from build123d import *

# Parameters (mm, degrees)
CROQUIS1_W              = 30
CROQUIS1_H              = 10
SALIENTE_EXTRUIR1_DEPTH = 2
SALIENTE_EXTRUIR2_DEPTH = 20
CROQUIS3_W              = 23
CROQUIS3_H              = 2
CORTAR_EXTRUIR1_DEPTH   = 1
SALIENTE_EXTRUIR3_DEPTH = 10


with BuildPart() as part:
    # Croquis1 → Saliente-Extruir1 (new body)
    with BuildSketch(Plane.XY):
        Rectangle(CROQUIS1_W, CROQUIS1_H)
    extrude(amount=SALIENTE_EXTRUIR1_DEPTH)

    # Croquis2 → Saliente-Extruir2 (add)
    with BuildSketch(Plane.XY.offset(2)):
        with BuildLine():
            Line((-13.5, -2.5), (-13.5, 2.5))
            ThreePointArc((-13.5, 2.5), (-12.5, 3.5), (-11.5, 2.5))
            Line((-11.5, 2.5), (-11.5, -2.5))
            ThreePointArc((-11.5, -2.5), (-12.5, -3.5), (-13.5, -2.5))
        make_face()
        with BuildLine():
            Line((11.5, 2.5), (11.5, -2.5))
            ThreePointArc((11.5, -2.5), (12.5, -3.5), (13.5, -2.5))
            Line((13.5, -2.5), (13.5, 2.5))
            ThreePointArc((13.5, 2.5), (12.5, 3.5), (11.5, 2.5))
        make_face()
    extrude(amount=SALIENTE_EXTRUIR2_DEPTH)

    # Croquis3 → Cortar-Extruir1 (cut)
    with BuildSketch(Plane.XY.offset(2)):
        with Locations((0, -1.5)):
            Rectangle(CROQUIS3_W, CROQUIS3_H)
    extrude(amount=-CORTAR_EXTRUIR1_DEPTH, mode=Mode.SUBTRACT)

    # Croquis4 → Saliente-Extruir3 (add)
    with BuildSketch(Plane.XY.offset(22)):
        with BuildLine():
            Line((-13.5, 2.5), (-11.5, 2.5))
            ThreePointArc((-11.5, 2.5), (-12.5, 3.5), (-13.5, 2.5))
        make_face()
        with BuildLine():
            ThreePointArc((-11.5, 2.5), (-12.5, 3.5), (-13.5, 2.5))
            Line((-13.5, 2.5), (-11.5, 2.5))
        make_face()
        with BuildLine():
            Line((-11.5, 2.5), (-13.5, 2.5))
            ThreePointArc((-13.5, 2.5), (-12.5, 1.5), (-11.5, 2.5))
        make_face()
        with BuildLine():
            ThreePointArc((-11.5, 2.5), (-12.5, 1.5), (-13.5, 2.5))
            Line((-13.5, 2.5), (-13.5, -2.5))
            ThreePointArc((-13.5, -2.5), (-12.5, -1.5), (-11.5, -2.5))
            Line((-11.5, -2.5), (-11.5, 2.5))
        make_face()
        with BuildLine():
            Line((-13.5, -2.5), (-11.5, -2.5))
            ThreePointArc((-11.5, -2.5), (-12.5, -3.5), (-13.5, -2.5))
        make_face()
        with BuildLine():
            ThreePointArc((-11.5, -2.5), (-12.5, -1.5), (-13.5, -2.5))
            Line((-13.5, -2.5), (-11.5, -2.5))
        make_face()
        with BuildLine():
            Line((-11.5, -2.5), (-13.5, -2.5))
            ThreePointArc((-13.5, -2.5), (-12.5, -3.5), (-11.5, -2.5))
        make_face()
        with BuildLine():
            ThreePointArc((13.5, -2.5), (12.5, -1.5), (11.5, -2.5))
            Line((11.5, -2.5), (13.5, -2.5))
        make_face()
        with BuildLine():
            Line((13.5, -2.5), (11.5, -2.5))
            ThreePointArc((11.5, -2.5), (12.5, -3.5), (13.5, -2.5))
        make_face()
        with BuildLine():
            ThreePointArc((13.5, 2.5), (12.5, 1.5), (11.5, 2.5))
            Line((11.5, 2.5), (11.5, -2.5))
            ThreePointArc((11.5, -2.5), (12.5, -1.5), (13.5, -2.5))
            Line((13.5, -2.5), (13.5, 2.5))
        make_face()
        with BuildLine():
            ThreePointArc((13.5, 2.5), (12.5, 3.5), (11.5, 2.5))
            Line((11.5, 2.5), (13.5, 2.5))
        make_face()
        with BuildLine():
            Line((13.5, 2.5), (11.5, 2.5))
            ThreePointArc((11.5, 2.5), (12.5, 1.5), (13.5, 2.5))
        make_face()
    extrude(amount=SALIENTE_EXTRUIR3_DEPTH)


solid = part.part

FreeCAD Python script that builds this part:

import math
import FreeCAD as App
import Part
import Sketcher
from FreeCAD import Vector

doc = App.newDocument("Part")
body = doc.addObject("PartDesign::Body", "Body")

sketch1 = body.newObject("Sketcher::SketchObject", "Sketch")
sketch1.AttachmentSupport = (doc.getObject("XY_Plane"), [""])
sketch1.MapMode = "FlatFace"
sketch1.addGeometry([
    Part.LineSegment(Vector(-15, 5, 0), Vector(-15, -5, 0)),
    Part.LineSegment(Vector(-15, -5, 0), Vector(15, -5, 0)),
    Part.LineSegment(Vector(15, -5, 0), Vector(15, 5, 0)),
    Part.LineSegment(Vector(15, 5, 0), Vector(-15, 5, 0)),
], False)
sketch1.addConstraint([
    Sketcher.Constraint("Coincident", 0, 2, 1, 1),
    Sketcher.Constraint("Coincident", 1, 2, 2, 1),
    Sketcher.Constraint("Coincident", 2, 2, 3, 1),
    Sketcher.Constraint("Coincident", 3, 2, 0, 1),
    Sketcher.Constraint("Vertical", 0),
    Sketcher.Constraint("Horizontal", 1),
    Sketcher.Constraint("Vertical", 2),
    Sketcher.Constraint("Horizontal", 3),
    Sketcher.Constraint("Symmetric", 0, 2, 2, 2, -1, 1),
    Sketcher.Constraint("DistanceX", 1, 1, 1, 2, 30.0),
    Sketcher.Constraint("DistanceY", 0, 2, 0, 1, 10.0),
])
pad1 = body.newObject("PartDesign::Pad", "Pad")
pad1.Profile = sketch1
pad1.Length = 2

sketch2 = body.newObject("Sketcher::SketchObject", "Sketch001")
sketch2.AttachmentSupport = (doc.getObject("XY_Plane"), [""])
sketch2.MapMode = "FlatFace"
sketch2.AttachmentOffset = App.Placement(Vector(0, 0, 2), App.Rotation())
sketch2.addGeometry([
    Part.LineSegment(Vector(-13.5, 2.5, 0), Vector(-13.5, -2.5, 0)),
    Part.ArcOfCircle(Part.Circle(Vector(-12.5, -2.5, 0), Vector(0, 0, 1), 1), math.radians(180), math.radians(360)),
    Part.LineSegment(Vector(-11.5, -2.5, 0), Vector(-11.5, 2.5, 0)),
    Part.ArcOfCircle(Part.Circle(Vector(-12.5, 2.5, 0), Vector(0, 0, 1), 1), math.radians(0), math.radians(180)),
    Part.LineSegment(Vector(11.5, 2.5, 0), Vector(11.5, -2.5, 0)),
    Part.ArcOfCircle(Part.Circle(Vector(12.5, -2.5, 0), Vector(0, 0, 1), 1), math.radians(180), math.radians(360)),
    Part.LineSegment(Vector(13.5, -2.5, 0), Vector(13.5, 2.5, 0)),
    Part.ArcOfCircle(Part.Circle(Vector(12.5, 2.5, 0), Vector(0, 0, 1), 1), math.radians(0), math.radians(180)),
], False)
sketch2.addConstraint([
    Sketcher.Constraint("Tangent", 0, 2, 1, 1),
    Sketcher.Constraint("Tangent", 1, 2, 2, 1),
    Sketcher.Constraint("Tangent", 2, 2, 3, 1),
    Sketcher.Constraint("Tangent", 3, 2, 0, 1),
    Sketcher.Constraint("Tangent", 4, 2, 5, 1),
    Sketcher.Constraint("Tangent", 5, 2, 6, 1),
    Sketcher.Constraint("Tangent", 6, 2, 7, 1),
    Sketcher.Constraint("Tangent", 7, 2, 4, 1),
    Sketcher.Constraint("Vertical", 0),
    Sketcher.Constraint("Vertical", 2),
    Sketcher.Constraint("Vertical", 4),
    Sketcher.Constraint("Vertical", 6),
    Sketcher.Constraint("Equal", 3, 5),
    Sketcher.Constraint("Symmetric", 3, 3, 5, 3, -1, 1),
    Sketcher.Constraint("Horizontal", 1, 3, 5, 3),
    Sketcher.Constraint("Horizontal", 3, 3, 7, 3),
    Sketcher.Constraint("Radius", 1, 1.0),
    Sketcher.Constraint("DistanceY", 0, 2, 0, 1, 5.0),
    Sketcher.Constraint("DistanceX", 1, 3, 5, 3, 25.0),
])
pad2 = body.newObject("PartDesign::Pad", "Pad001")
pad2.Profile = sketch2
pad2.Length = 20

sketch3 = body.newObject("Sketcher::SketchObject", "Sketch002")
sketch3.AttachmentSupport = (doc.getObject("XY_Plane"), [""])
sketch3.MapMode = "FlatFace"
sketch3.AttachmentOffset = App.Placement(Vector(0, 0, 2), App.Rotation())
sketch3.addGeometry([
    Part.LineSegment(Vector(-11.5, -0.5, 0), Vector(-11.5, -2.5, 0)),
    Part.LineSegment(Vector(-11.5, -2.5, 0), Vector(11.5, -2.5, 0)),
    Part.LineSegment(Vector(11.5, -2.5, 0), Vector(11.5, -0.5, 0)),
    Part.LineSegment(Vector(11.5, -0.5, 0), Vector(-11.5, -0.5, 0)),
], False)
sketch3.addConstraint([
    Sketcher.Constraint("Coincident", 0, 2, 1, 1),
    Sketcher.Constraint("Coincident", 1, 2, 2, 1),
    Sketcher.Constraint("Coincident", 2, 2, 3, 1),
    Sketcher.Constraint("Coincident", 3, 2, 0, 1),
    Sketcher.Constraint("Vertical", 0),
    Sketcher.Constraint("Horizontal", 1),
    Sketcher.Constraint("Vertical", 2),
    Sketcher.Constraint("Horizontal", 3),
    Sketcher.Constraint("DistanceX", 1, 1, 1, 2, 23.0),
    Sketcher.Constraint("DistanceY", 0, 2, 0, 1, 2.0),
    Sketcher.Constraint("DistanceX", 0, 2, -1, 1, 11.5),
    Sketcher.Constraint("DistanceY", 0, 2, -1, 1, 2.5),
])
pocket1 = body.newObject("PartDesign::Pocket", "Pocket")
pocket1.Profile = sketch3
pocket1.Length = 1

sketch4 = body.newObject("Sketcher::SketchObject", "Sketch003")
sketch4.AttachmentSupport = (doc.getObject("XY_Plane"), [""])
sketch4.MapMode = "FlatFace"
sketch4.AttachmentOffset = App.Placement(Vector(0, 0, 22), App.Rotation())
sketch4.addGeometry([
    Part.LineSegment(Vector(-11.5, -2.5, 0), Vector(-11.5, 2.5, 0)),
    Part.ArcOfCircle(Part.Circle(Vector(-12.5, 2.5, 0), Vector(0, 0, 1), 1), math.radians(0), math.radians(180)),
    Part.LineSegment(Vector(-13.5, 2.5, 0), Vector(-13.5, -2.5, 0)),
    Part.ArcOfCircle(Part.Circle(Vector(-12.5, -2.5, 0), Vector(0, 0, 1), 1), math.radians(180), math.radians(360)),
    Part.LineSegment(Vector(13.5, -2.5, 0), Vector(13.5, 2.5, 0)),
    Part.ArcOfCircle(Part.Circle(Vector(12.5, 2.5, 0), Vector(0, 0, 1), 1), math.radians(0), math.radians(180)),
    Part.LineSegment(Vector(11.5, 2.5, 0), Vector(11.5, -2.5, 0)),
    Part.ArcOfCircle(Part.Circle(Vector(12.5, -2.5, 0), Vector(0, 0, 1), 1), math.radians(180), math.radians(360)),
], False)
sketch4.addConstraint([
    Sketcher.Constraint("Tangent", 0, 2, 1, 1),
    Sketcher.Constraint("Tangent", 1, 2, 2, 1),
    Sketcher.Constraint("Tangent", 2, 2, 3, 1),
    Sketcher.Constraint("Tangent", 3, 2, 0, 1),
    Sketcher.Constraint("Tangent", 4, 2, 5, 1),
    Sketcher.Constraint("Tangent", 5, 2, 6, 1),
    Sketcher.Constraint("Tangent", 6, 2, 7, 1),
    Sketcher.Constraint("Tangent", 7, 2, 4, 1),
    Sketcher.Constraint("Vertical", 0),
    Sketcher.Constraint("Vertical", 2),
    Sketcher.Constraint("Vertical", 4),
    Sketcher.Constraint("Vertical", 6),
    Sketcher.Constraint("Equal", 3, 5),
    Sketcher.Constraint("Symmetric", 3, 3, 5, 3, -1, 1),
    Sketcher.Constraint("Horizontal", 1, 3, 5, 3),
    Sketcher.Constraint("Horizontal", 3, 3, 7, 3),
    Sketcher.Constraint("Radius", 1, 1.0),
    Sketcher.Constraint("DistanceY", 0, 1, 0, 2, 5.0),
    Sketcher.Constraint("DistanceX", 1, 3, 5, 3, 25.0),
])
pad3 = body.newObject("PartDesign::Pad", "Pad002")
pad3.Profile = sketch4
pad3.Length = 10

doc.recompute()
